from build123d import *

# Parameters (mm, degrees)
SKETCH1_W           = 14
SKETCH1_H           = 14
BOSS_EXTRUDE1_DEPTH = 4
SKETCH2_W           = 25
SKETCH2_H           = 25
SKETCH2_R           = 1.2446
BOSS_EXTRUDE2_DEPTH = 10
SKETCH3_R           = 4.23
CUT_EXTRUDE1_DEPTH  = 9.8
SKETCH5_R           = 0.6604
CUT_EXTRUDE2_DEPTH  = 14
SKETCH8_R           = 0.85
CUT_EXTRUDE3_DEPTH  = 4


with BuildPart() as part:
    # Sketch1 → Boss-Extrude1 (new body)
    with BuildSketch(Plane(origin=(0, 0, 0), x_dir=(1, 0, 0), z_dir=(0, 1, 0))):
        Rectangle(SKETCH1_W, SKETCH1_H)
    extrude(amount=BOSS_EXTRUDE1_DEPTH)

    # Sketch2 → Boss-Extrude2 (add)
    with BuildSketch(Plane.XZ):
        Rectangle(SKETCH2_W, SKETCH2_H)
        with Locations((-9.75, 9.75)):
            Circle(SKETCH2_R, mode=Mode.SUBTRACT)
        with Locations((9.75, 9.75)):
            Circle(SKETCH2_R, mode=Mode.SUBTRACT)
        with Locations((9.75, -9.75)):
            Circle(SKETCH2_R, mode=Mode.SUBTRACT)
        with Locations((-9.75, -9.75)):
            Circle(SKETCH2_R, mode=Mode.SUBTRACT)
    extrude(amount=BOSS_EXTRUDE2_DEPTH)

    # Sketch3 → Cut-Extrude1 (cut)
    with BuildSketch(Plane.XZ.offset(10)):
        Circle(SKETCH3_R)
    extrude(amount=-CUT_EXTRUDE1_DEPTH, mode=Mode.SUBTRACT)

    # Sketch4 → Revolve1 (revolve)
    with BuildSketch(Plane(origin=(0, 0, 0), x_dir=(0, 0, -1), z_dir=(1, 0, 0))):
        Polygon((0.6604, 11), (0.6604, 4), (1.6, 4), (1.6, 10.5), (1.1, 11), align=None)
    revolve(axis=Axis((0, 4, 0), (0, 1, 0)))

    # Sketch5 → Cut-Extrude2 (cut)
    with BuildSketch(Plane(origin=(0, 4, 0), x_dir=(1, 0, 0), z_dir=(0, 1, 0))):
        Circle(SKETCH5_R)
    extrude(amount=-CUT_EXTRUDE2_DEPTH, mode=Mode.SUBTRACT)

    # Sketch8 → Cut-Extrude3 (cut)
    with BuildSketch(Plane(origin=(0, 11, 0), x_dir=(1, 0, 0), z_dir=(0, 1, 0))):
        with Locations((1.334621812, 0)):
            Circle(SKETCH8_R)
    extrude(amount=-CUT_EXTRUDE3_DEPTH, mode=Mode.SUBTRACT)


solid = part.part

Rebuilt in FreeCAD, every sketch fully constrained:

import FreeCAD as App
import Part
import Sketcher
Q = App.Units.Quantity


def add_polygon(sketch, points):
    """Adds a closed chain of lines whose ends are joined by coincident constraints."""
    first, n = sketch.GeometryCount, len(points)
    for a, b in zip(points, points[1:] + points[:1]):
        sketch.addGeometry(Part.LineSegment(App.Vector(*a, 0), App.Vector(*b, 0)), False)
    for i in range(n):
        sketch.addConstraint(Sketcher.Constraint("Coincident", first + i, 2, first + (i + 1) % n, 1))

doc = App.newDocument("Part")
params = doc.addObject("Spreadsheet::Sheet", "Params")
for row, (alias, value) in enumerate([
    ("sketch1_width", "14 mm"),
    ("pad1_length", "4 mm"),
    ("sketch2_width", "25 mm"),
    ("pad2_length", "10 mm"),
    ("sketch3_diameter", "8.46 mm"),
    ("pocket1_length", "9.8 mm"),
    ("sketch4_width", "7 mm"),
    ("sketch4_width2", "6.5 mm"),
    ("revolution_angle", "360 deg"),
    ("pocket2_length", "14 mm"),
    ("sketch6_diameter", "1.7 mm"),
    ("pocket3_length", "4 mm"),
], start=1):
    params.set(f"A{row}", alias)
    params.set(f"B{row}", "=" + value)
    params.setAlias(f"B{row}", alias)

body = doc.addObject("PartDesign::Body", "Body")

# Sketch on XZ plane
sketch1 = body.newObject("Sketcher::SketchObject", "Sketch")
sketch1.AttachmentSupport = (doc.getObject("XZ_Plane"), [""])
sketch1.MapMode = "FlatFace"
add_polygon(sketch1, [(-7, -7), (-7, 7), (7, 7), (7, -7)])  # lines 0-3
sketch1.addConstraint(Sketcher.Constraint("Vertical", 0))
sketch1.addConstraint(Sketcher.Constraint("Horizontal", 1))
sketch1.addConstraint(Sketcher.Constraint("Vertical", 2))
sketch1.addConstraint(Sketcher.Constraint("Horizontal", 3))
sketch1.addConstraint(Sketcher.Constraint("Symmetric", 0, 2, 2, 2, -1, 1))
sketch1.addConstraint(Sketcher.Constraint("Equal", 3, 0))
sketch1.addConstraint(Sketcher.Constraint("DistanceX", 1, 1, 1, 2, 14.0))
sketch1.setExpression("Constraints[10]", "Params.sketch1_width")
pad1 = body.newObject("PartDesign::Pad", "Pad")
pad1.Profile = sketch1
pad1.setExpression("Length", "Params.pad1_length")
pad1.Reversed = True

# Sketch on XZ plane
sketch2 = body.newObject("Sketcher::SketchObject", "Sketch001")
sketch2.AttachmentSupport = (doc.getObject("XZ_Plane"), [""])
sketch2.MapMode = "FlatFace"
add_polygon(sketch2, [(-12.5, 12.5), (-12.5, -12.5), (12.5, -12.5), (12.5, 12.5)])  # lines 0-3
sketch2.addGeometry(Part.Circle(App.Vector(-9.8, -9.8, 0), App.Vector(0, 0, 1), 1.2), False)  # 4
sketch2.addGeometry(Part.Circle(App.Vector(9.8, -9.8, 0), App.Vector(0, 0, 1), 1.2), False)  # 5
sketch2.addGeometry(Part.Circle(App.Vector(-9.8, 9.8, 0), App.Vector(0, 0, 1), 1.2), False)  # 6
sketch2.addGeometry(Part.Circle(App.Vector(9.8, 9.8, 0), App.Vector(0, 0, 1), 1.2), False)  # 7
sketch2.addConstraint(Sketcher.Constraint("Vertical", 0))
sketch2.addConstraint(Sketcher.Constraint("Horizontal", 1))
sketch2.addConstraint(Sketcher.Constraint("Vertical", 2))
sketch2.addConstraint(Sketcher.Constraint("Horizontal", 3))
sketch2.addConstraint(Sketcher.Constraint("Equal", 4, 5))
sketch2.addConstraint(Sketcher.Constraint("Equal", 5, 6))
sketch2.addConstraint(Sketcher.Constraint("Equal", 6, 7))
sketch2.addConstraint(Sketcher.Constraint("Symmetric", 5, 3, 6, 3, -1, 1))
sketch2.addConstraint(Sketcher.Constraint("Symmetric", 4, 3, 7, 3, -1, 1))
sketch2.addConstraint(Sketcher.Constraint("Symmetric", 0, 2, 2, 2, -1, 1))
sketch2.addConstraint(Sketcher.Constraint("Symmetric", 4, 3, 5, 3, -2))
sketch2.addConstraint(Sketcher.Constraint("Equal", 3, 0))
sketch2.addConstraint(Sketcher.Constraint("DistanceX", 1, 1, 1, 2, 25.0))
sketch2.addConstraint(Sketcher.Constraint("Diameter", 4, 2.4892))
sketch2.addConstraint(Sketcher.Constraint("DistanceX", 4, 3, 5, 3, 19.5))
sketch2.addConstraint(Sketcher.Constraint("DistanceY", 4, 3, 6, 3, 19.5))
sketch2.setExpression("Constraints[16]", "Params.sketch2_width")
pad2 = body.newObject("PartDesign::Pad", "Pad001")
pad2.Profile = sketch2
pad2.setExpression("Length", "Params.pad2_length")

# Sketch on XZ plane
sketch3 = body.newObject("Sketcher::SketchObject", "Sketch002")
sketch3.AttachmentSupport = (doc.getObject("XZ_Plane"), [""])
sketch3.MapMode = "FlatFace"
sketch3.AttachmentOffset = App.Placement(App.Vector(0, 0, 10), App.Rotation())
sketch3.addGeometry(Part.Circle(App.Vector(0, 0, 0), App.Vector(0, 0, 1), 4.2), False)
sketch3.addConstraint(Sketcher.Constraint("Coincident", 0, 3, -1, 1))
sketch3.addConstraint(Sketcher.Constraint("Diameter", 0, 8.46))
sketch3.setExpression("Constraints[1]", "Params.sketch3_diameter")
pocket1 = body.newObject("PartDesign::Pocket", "Pocket")
pocket1.Profile = sketch3
pocket1.setExpression("Length", "Params.pocket1_length")

# Sketch on YZ plane
sketch4 = body.newObject("Sketcher::SketchObject", "Sketch003")
sketch4.AttachmentSupport = (doc.getObject("YZ_Plane"), [""])
sketch4.MapMode = "FlatFace"
add_polygon(sketch4, [(11, -0.66), (4, -0.66), (4, -1.6), (10.5, -1.6), (11, -1.1)])  # lines 0-4
sketch4.addConstraint(Sketcher.Constraint("Horizontal", 0))
sketch4.addConstraint(Sketcher.Constraint("Vertical", 1))
sketch4.addConstraint(Sketcher.Constraint("Horizontal", 2))
sketch4.addConstraint(Sketcher.Constraint("Vertical", 4))
sketch4.addConstraint(Sketcher.Constraint("DistanceX", 0, 2, 0, 1, 7.0))
sketch4.addConstraint(Sketcher.Constraint("Angle", 3, Q("45 deg")))
sketch4.addConstraint(Sketcher.Constraint("DistanceX", 2, 1, 2, 2, 6.5))
sketch4.addConstraint(Sketcher.Constraint("DistanceX", -1, 1, 0, 2, 4.0))
sketch4.addConstraint(Sketcher.Constraint("DistanceY", 1, 2, -1, 1, 1.6))
sketch4.addConstraint(Sketcher.Constraint("DistanceY", 1, 2, 1, 1, 0.9396))
sketch4.setExpression("Constraints[9]", "Params.sketch4_width")
sketch4.setExpression("Constraints[11]", "Params.sketch4_width2")
revolution = body.newObject("PartDesign::Revolution", "Revolution")
revolution.Profile = sketch4
revolution.ReferenceAxis = (sketch4, ["H_Axis"])
revolution.setExpression("Angle", "Params.revolution_angle")

# Sketch on XZ plane
sketch5 = body.newObject("Sketcher::SketchObject", "Sketch004")
sketch5.AttachmentSupport = (doc.getObject("XZ_Plane"), [""])
sketch5.MapMode = "FlatFace"
sketch5.AttachmentOffset = App.Placement(App.Vector(0, 0, -4), App.Rotation())
sketch5.addGeometry(Part.Circle(App.Vector(0, 0, 0), App.Vector(0, 0, 1), 0.7), False)
sketch5.addConstraint(Sketcher.Constraint("Coincident", 0, 3, -1, 1))
sketch5.addConstraint(Sketcher.Constraint("Diameter", 0, 1.3208))
pocket2 = body.newObject("PartDesign::Pocket", "Pocket001")
pocket2.Profile = sketch5
pocket2.setExpression("Length", "Params.pocket2_length")
pocket2.Reversed = True

# Sketch on XZ plane
sketch6 = body.newObject("Sketcher::SketchObject", "Sketch005")
sketch6.AttachmentSupport = (doc.getObject("XZ_Plane"), [""])
sketch6.MapMode = "FlatFace"
sketch6.AttachmentOffset = App.Placement(App.Vector(0, 0, -11), App.Rotation())
sketch6.addGeometry(Part.Circle(App.Vector(1.3, 0, 0), App.Vector(0, 0, 1), 0.8), False)
sketch6.addConstraint(Sketcher.Constraint("PointOnObject", 0, 3, -1))
sketch6.addConstraint(Sketcher.Constraint("Diameter", 0, 1.7))
sketch6.addConstraint(Sketcher.Constraint("DistanceX", -1, 1, 0, 3, 1.334622))
sketch6.setExpression("Constraints[1]", "Params.sketch6_diameter")
pocket3 = body.newObject("PartDesign::Pocket", "Pocket002")
pocket3.Profile = sketch6
pocket3.setExpression("Length", "Params.pocket3_length")
pocket3.Reversed = True

doc.recompute()
